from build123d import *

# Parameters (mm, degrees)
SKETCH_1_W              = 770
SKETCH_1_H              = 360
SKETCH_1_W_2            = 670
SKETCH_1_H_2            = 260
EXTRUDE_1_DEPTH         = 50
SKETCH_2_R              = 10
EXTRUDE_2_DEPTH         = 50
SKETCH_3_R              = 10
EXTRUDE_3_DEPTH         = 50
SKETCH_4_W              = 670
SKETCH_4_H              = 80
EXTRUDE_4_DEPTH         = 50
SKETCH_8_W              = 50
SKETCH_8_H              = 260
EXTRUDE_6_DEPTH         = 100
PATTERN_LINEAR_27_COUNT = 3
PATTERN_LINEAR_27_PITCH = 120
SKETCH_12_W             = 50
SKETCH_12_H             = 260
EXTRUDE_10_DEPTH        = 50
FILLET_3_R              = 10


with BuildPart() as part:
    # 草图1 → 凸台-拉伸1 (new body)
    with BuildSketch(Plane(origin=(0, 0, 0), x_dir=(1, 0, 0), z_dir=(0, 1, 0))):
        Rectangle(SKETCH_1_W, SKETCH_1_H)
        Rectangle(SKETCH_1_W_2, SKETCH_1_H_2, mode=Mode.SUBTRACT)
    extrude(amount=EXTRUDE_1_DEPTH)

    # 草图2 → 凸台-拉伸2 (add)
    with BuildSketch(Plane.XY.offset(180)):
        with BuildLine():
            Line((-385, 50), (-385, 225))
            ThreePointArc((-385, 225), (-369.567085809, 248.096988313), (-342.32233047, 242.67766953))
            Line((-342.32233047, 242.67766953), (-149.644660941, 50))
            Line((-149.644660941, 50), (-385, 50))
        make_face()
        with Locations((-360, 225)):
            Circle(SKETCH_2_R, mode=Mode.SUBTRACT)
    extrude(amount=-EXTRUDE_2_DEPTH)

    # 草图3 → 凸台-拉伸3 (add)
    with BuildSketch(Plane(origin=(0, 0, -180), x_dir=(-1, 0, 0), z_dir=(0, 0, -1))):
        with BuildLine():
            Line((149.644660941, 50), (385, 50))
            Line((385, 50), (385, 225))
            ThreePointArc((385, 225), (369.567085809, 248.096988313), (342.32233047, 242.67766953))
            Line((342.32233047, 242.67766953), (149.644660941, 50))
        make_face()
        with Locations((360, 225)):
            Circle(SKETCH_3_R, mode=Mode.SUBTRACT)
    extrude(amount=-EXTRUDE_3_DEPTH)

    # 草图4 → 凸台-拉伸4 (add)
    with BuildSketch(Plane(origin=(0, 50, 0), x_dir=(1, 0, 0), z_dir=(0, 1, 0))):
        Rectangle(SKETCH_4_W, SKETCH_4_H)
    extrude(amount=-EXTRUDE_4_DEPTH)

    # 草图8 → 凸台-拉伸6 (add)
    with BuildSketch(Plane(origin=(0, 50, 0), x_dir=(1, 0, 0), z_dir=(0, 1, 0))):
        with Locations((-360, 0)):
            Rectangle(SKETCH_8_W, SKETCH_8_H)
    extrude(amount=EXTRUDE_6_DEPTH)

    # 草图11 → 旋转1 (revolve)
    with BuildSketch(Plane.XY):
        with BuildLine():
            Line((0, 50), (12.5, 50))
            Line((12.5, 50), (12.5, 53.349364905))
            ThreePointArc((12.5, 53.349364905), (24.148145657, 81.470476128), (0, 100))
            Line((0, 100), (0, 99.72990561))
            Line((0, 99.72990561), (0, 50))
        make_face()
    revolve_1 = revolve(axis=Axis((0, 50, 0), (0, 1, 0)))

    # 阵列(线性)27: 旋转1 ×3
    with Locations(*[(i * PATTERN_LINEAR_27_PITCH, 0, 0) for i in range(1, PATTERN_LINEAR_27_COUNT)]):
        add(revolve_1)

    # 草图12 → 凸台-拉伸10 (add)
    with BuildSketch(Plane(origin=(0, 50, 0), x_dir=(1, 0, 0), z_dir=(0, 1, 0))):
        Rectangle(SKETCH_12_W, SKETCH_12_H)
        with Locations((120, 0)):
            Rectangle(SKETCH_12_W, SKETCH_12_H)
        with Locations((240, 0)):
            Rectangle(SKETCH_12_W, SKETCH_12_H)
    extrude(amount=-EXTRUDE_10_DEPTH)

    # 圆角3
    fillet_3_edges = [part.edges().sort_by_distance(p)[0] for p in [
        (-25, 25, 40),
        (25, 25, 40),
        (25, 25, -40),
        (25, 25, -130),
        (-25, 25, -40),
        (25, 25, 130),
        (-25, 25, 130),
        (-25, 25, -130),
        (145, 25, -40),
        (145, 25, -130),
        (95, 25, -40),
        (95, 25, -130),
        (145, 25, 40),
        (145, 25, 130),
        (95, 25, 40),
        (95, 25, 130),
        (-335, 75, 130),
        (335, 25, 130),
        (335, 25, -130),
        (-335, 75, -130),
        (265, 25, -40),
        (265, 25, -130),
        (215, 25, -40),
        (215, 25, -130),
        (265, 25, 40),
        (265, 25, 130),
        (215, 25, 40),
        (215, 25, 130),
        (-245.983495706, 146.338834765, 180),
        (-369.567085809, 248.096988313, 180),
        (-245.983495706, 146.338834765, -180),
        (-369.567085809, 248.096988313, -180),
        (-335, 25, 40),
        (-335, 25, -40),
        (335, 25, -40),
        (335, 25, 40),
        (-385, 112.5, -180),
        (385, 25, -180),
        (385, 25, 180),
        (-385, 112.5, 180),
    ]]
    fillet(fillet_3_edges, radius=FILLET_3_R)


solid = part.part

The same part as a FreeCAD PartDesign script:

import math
import FreeCAD as App
import Part
import Sketcher
from FreeCAD import Vector
Q = App.Units.Quantity


def edges_at(feature, points):
    """Names of the edges that pass closest to the given points."""
    edges = feature.Shape.Edges
    near = lambda p: min(range(len(edges)), key=lambda i: edges[i].distToShape(Part.Vertex(*p))[0])
    return sorted({f"Edge{near(p) + 1}" for p in points})


def add_polygon(sketch, points):
    """Adds a closed chain of lines whose ends are joined by coincident constraints."""
    first, n = sketch.GeometryCount, len(points)
    for a, b in zip(points, points[1:] + points[:1]):
        sketch.addGeometry(Part.LineSegment(App.Vector(*a, 0), App.Vector(*b, 0)), False)
    for i in range(n):
        sketch.addConstraint(Sketcher.Constraint("Coincident", first + i, 2, first + (i + 1) % n, 1))

doc = App.newDocument("Part")
body = doc.addObject("PartDesign::Body", "Body")

# Sketch on XZ plane
sketch1 = body.newObject("Sketcher::SketchObject", "Sketch")
sketch1.AttachmentSupport = (doc.getObject("XZ_Plane"), [""])
sketch1.MapMode = "FlatFace"
add_polygon(sketch1, [(-385, -180), (-385, 180), (385, 180), (385, -180)])  # lines 0-3
add_polygon(sketch1, [(335, 130), (-335, 130), (-335, -130), (335, -130)])  # lines 4-7
sketch1.addConstraint([
    Sketcher.Constraint("Vertical", 0),
    Sketcher.Constraint("Horizontal", 1),
    Sketcher.Constraint("Vertical", 2),
    Sketcher.Constraint("Horizontal", 3),
    Sketcher.Constraint("Horizontal", 4),
    Sketcher.Constraint("Vertical", 5),
    Sketcher.Constraint("Horizontal", 6),
    Sketcher.Constraint("Vertical", 7),
    Sketcher.Constraint("Symmetric", 0, 2, 2, 2, -1, 1),
    Sketcher.Constraint("Symmetric", 4, 2, 6, 2, -1, 1),
    Sketcher.Constraint("DistanceX", 1, 1, 1, 2, Q("770 mm")),
    Sketcher.Constraint("DistanceX", 4, 2, 4, 1, Q("670 mm")),
    Sketcher.Constraint("DistanceY", 0, 1, 0, 2, Q("360 mm")),
    Sketcher.Constraint("DistanceY", 5, 2, 5, 1, Q("260 mm")),
])
pad1 = body.newObject("PartDesign::Pad", "Pad")
pad1.Profile = sketch1
pad1.Length = 50
pad1.Reversed = True

# Sketch on XY plane
sketch2 = body.newObject("Sketcher::SketchObject", "Sketch001")
sketch2.AttachmentSupport = (doc.getObject("XY_Plane"), [""])
sketch2.MapMode = "FlatFace"
sketch2.AttachmentOffset = App.Placement(Vector(0, 0, 180), App.Rotation())
sketch2.addGeometry([
    Part.LineSegment(Vector(-385, 225, 0), Vector(-385, 50, 0)),  # 0
    Part.LineSegment(Vector(-385, 50, 0), Vector(-150, 50, 0)),  # 1
    Part.LineSegment(Vector(-150, 50, 0), Vector(-342, 243, 0)),  # 2
    Part.ArcOfCircle(Part.Circle(Vector(-360, 225, 0), Vector(0, 0, 1), 25), math.radians(45), math.radians(180)),  # 3
    Part.Circle(Vector(-360, 225, 0), Vector(0, 0, 1), 10),  # 4
], False)
sketch2.addConstraint([
    Sketcher.Constraint("Coincident", 0, 2, 1, 1),
    Sketcher.Constraint("Coincident", 1, 2, 2, 1),
    Sketcher.Constraint("Tangent", 2, 2, 3, 1),
    Sketcher.Constraint("Tangent", 3, 2, 0, 1),
    Sketcher.Constraint("Vertical", 0),
    Sketcher.Constraint("Horizontal", 1),
    Sketcher.Constraint("Coincident", 4, 3, 3, 3),
    Sketcher.Constraint("Diameter", 4, Q("20 mm")),
    Sketcher.Constraint("Radius", 3, Q("25 mm")),
    Sketcher.Constraint("DistanceY", 0, 2, 0, 1, Q("175 mm")),
    Sketcher.Constraint("Angle", 2, Q("135 deg")),
    Sketcher.Constraint("DistanceX", 3, 3, -1, 1, Q("360 mm")),
    Sketcher.Constraint("DistanceY", -1, 1, 3, 3, Q("225 mm")),
])
pad2 = body.newObject("PartDesign::Pad", "Pad001")
pad2.Profile = sketch2
pad2.Length = 50
pad2.Reversed = True

# Sketch on XY plane
sketch3 = body.newObject("Sketcher::SketchObject", "Sketch002")
sketch3.AttachmentSupport = (doc.getObject("XY_Plane"), [""])
sketch3.MapMode = "FlatFace"
sketch3.AttachmentOffset = App.Placement(Vector(0, 0, -180), App.Rotation())
sketch3.addGeometry([
    Part.LineSegment(Vector(-150, 50, 0), Vector(-385, 50, 0)),  # 0
    Part.LineSegment(Vector(-385, 50, 0), Vector(-385, 225, 0)),  # 1
    Part.ArcOfCircle(Part.Circle(Vector(-360, 225, 0), Vector(0, 0, 1), 25), math.radians(45), math.radians(180)),  # 2
    Part.LineSegment(Vector(-342, 243, 0), Vector(-150, 50, 0)),  # 3
    Part.Circle(Vector(-360, 225, 0), Vector(0, 0, 1), 10),  # 4
], False)
sketch3.addConstraint([
    Sketcher.Constraint("Coincident", 0, 2, 1, 1),
    Sketcher.Constraint("Tangent", 1, 2, 2, 2),
    Sketcher.Constraint("Tangent", 2, 1, 3, 1),
    Sketcher.Constraint("Coincident", 3, 2, 0, 1),
    Sketcher.Constraint("Horizontal", 0),
    Sketcher.Constraint("Vertical", 1),
    Sketcher.Constraint("Coincident", 4, 3, 2, 3),
    Sketcher.Constraint("Diameter", 4, Q("20 mm")),
    Sketcher.Constraint("Radius", 2, Q("25 mm")),
    Sketcher.Constraint("DistanceY", 1, 1, 1, 2, Q("175 mm")),
    Sketcher.Constraint("Angle", 3, Q("-45 deg")),
    Sketcher.Constraint("DistanceX", 2, 3, -1, 1, Q("360 mm")),
    Sketcher.Constraint("DistanceY", -1, 1, 2, 3, Q("225 mm")),
])
pad3 = body.newObject("PartDesign::Pad", "Pad002")
pad3.Profile = sketch3
pad3.Length = 50

# Sketch on XZ plane
sketch4 = body.newObject("Sketcher::SketchObject", "Sketch003")
sketch4.AttachmentSupport = (doc.getObject("XZ_Plane"), [""])
sketch4.MapMode = "FlatFace"
sketch4.AttachmentOffset = App.Placement(Vector(0, 0, -50), App.Rotation())
add_polygon(sketch4, [(-335, -40), (-335, 40), (335, 40), (335, -40)])  # lines 0-3
sketch4.addConstraint([
    Sketcher.Constraint("Vertical", 0),
    Sketcher.Constraint("Horizontal", 1),
    Sketcher.Constraint("Vertical", 2),
    Sketcher.Constraint("Horizontal", 3),
    Sketcher.Constraint("Symmetric", 0, 2, 2, 2, -1, 1),
    Sketcher.Constraint("DistanceX", 1, 1, 1, 2, Q("670 mm")),
    Sketcher.Constraint("DistanceY", 0, 1, 0, 2, Q("80 mm")),
])
pad4 = body.newObject("PartDesign::Pad", "Pad003")
pad4.Profile = sketch4
pad4.Length = 50

# Sketch on XZ plane
sketch5 = body.newObject("Sketcher::SketchObject", "Sketch004")
sketch5.AttachmentSupport = (doc.getObject("XZ_Plane"), [""])
sketch5.MapMode = "FlatFace"
sketch5.AttachmentOffset = App.Placement(Vector(0, 0, -50), App.Rotation())
add_polygon(sketch5, [(-385, -130), (-385, 130), (-335, 130), (-335, -130)])  # lines 0-3
sketch5.addConstraint([
    Sketcher.Constraint("Vertical", 0),
    Sketcher.Constraint("Horizontal", 1),
    Sketcher.Constraint("Vertical", 2),
    Sketcher.Constraint("Horizontal", 3),
    Sketcher.Constraint("DistanceX", 1, 1, 1, 2, Q("50 mm")),
    Sketcher.Constraint("DistanceY", 0, 1, 0, 2, Q("260 mm")),
    Sketcher.Constraint("DistanceX", 0, 2, -1, 1, Q("385 mm")),
    Sketcher.Constraint("DistanceY", -1, 1, 0, 2, Q("130 mm")),
])
pad5 = body.newObject("PartDesign::Pad", "Pad004")
pad5.Profile = sketch5
pad5.Length = 100
pad5.Reversed = True

# Sketch on XY plane
sketch6 = body.newObject("Sketcher::SketchObject", "Sketch005")
sketch6.AttachmentSupport = (doc.getObject("XY_Plane"), [""])
sketch6.MapMode = "FlatFace"
sketch6.addGeometry([
    Part.LineSegment(Vector(0, 50, 0), Vector(12.5, 50, 0)),
    Part.LineSegment(Vector(12.5, 50, 0), Vector(12.5, 53.3, 0)),
    Part.ArcOfCircle(Part.Circle(Vector(0, 75, 0), Vector(0, 0, 1), 25), math.radians(-60), math.radians(90)),
    Part.LineSegment(Vector(0, 100, 0), Vector(0, 50, 0)),
], False)
sketch6.addConstraint([
    Sketcher.Constraint("Coincident", 0, 2, 1, 1),
    Sketcher.Constraint("Coincident", 1, 2, 2, 1),
    Sketcher.Constraint("Coincident", 2, 2, 3, 1),
    Sketcher.Constraint("Coincident", 3, 2, 0, 1),
    Sketcher.Constraint("Horizontal", 0),
    Sketcher.Constraint("Vertical", 1),
    Sketcher.Constraint("Vertical", 3),
    Sketcher.Constraint("PointOnObject", 2, 3, -2),
    Sketcher.Constraint("PointOnObject", 2, 2, -2),
    Sketcher.Constraint("Radius", 2, Q("25 mm")),
    Sketcher.Constraint("DistanceY", 3, 2, 3, 1, Q("50 mm")),
    Sketcher.Constraint("DistanceX", 0, 1, 0, 2, Q("12.5 mm")),
    Sketcher.Constraint("DistanceY", -1, 1, 2, 3, Q("75 mm")),
])
revolution = body.newObject("PartDesign::Revolution", "Revolution")
revolution.Profile = sketch6
revolution.ReferenceAxis = (sketch6, ["V_Axis"])
revolution.Angle = 360
doc.recompute()

linearpattern = body.newObject("PartDesign::LinearPattern", "LinearPattern")
linearpattern.Originals = [revolution]
linearpattern.Direction = (doc.getObject("X_Axis"), [""])
linearpattern.Mode = "offset"
linearpattern.Offset = 120
linearpattern.Occurrences = 3
body.Tip = linearpattern

# Sketch on XZ plane
sketch7 = body.newObject("Sketcher::SketchObject", "Sketch006")
sketch7.AttachmentSupport = (doc.getObject("XZ_Plane"), [""])
sketch7.MapMode = "FlatFace"
sketch7.AttachmentOffset = App.Placement(Vector(0, 0, -50), App.Rotation())
add_polygon(sketch7, [(-25, -130), (-25, 130), (25, 130), (25, -130)])  # lines 0-3
add_polygon(sketch7, [(95, -130), (95, 130), (145, 130), (145, -130)])  # lines 4-7
add_polygon(sketch7, [(215, -130), (215, 130), (265, 130), (265, -130)])  # lines 8-11
sketch7.addConstraint([
    Sketcher.Constraint("Vertical", 0),
    Sketcher.Constraint("Horizontal", 1),
    Sketcher.Constraint("Vertical", 2),
    Sketcher.Constraint("Horizontal", 3),
    Sketcher.Constraint("Vertical", 4),
    Sketcher.Constraint("Horizontal", 5),
    Sketcher.Constraint("Vertical", 6),
    Sketcher.Constraint("Horizontal", 7),
    Sketcher.Constraint("Vertical", 8),
    Sketcher.Constraint("Horizontal", 9),
    Sketcher.Constraint("Vertical", 10),
    Sketcher.Constraint("Horizontal", 11),
    Sketcher.Constraint("Symmetric", 0, 2, 2, 2, -1, 1),
    Sketcher.Constraint("Horizontal", 1, 2, 4, 2),
    Sketcher.Constraint("Horizontal", 3, 2, 6, 2),
    Sketcher.Constraint("Horizontal", 5, 2, 8, 2),
    Sketcher.Constraint("Horizontal", 7, 2, 10, 2),
    Sketcher.Constraint("Equal", 3, 5),
    Sketcher.Constraint("Equal", 7, 9),
    Sketcher.Constraint("DistanceX", 1, 1, 1, 2, Q("50 mm")),
    Sketcher.Constraint("DistanceY", 0, 1, 0, 2, Q("260 mm")),
    Sketcher.Constraint("DistanceX", -1, 1, 4, 2, Q("95 mm")),
    Sketcher.Constraint("DistanceX", -1, 1, 8, 2, Q("215 mm")),
])
pad6 = body.newObject("PartDesign::Pad", "Pad005")
pad6.Profile = sketch7
pad6.Length = 50
doc.recompute()

fillet = body.newObject("PartDesign::Fillet", "Fillet")
fillet.Base = (pad6, edges_at(pad6, [
    (-25, 25, 40),
    (25, 25, 40),
    (25, 25, -40),
    (25, 25, -130),
    (-25, 25, -40),
    (25, 25, 130),
    (-25, 25, 130),
    (-25, 25, -130),
    (145, 25, -40),
    (145, 25, -130),
    (95, 25, -40),
    (95, 25, -130),
    (145, 25, 40),
    (145, 25, 130),
    (95, 25, 40),
    (95, 25, 130),
    (-335, 75, 130),
    (335, 25, 130),
    (335, 25, -130),
    (-335, 75, -130),
    (265, 25, -40),
    (265, 25, -130),
    (215, 25, -40),
    (215, 25, -130),
    (265, 25, 40),
    (265, 25, 130),
    (215, 25, 40),
    (215, 25, 130),
    (-245.983, 146.339, 180),
    (-369.567, 248.097, 180),
    (-245.983, 146.339, -180),
    (-369.567, 248.097, -180),
    (-335, 25, 40),
    (-335, 25, -40),
    (335, 25, -40),
    (335, 25, 40),
    (-385, 112.5, -180),
    (385, 25, -180),
    (385, 25, 180),
    (-385, 112.5, 180),
]))
fillet.Radius = 10

doc.recompute()
